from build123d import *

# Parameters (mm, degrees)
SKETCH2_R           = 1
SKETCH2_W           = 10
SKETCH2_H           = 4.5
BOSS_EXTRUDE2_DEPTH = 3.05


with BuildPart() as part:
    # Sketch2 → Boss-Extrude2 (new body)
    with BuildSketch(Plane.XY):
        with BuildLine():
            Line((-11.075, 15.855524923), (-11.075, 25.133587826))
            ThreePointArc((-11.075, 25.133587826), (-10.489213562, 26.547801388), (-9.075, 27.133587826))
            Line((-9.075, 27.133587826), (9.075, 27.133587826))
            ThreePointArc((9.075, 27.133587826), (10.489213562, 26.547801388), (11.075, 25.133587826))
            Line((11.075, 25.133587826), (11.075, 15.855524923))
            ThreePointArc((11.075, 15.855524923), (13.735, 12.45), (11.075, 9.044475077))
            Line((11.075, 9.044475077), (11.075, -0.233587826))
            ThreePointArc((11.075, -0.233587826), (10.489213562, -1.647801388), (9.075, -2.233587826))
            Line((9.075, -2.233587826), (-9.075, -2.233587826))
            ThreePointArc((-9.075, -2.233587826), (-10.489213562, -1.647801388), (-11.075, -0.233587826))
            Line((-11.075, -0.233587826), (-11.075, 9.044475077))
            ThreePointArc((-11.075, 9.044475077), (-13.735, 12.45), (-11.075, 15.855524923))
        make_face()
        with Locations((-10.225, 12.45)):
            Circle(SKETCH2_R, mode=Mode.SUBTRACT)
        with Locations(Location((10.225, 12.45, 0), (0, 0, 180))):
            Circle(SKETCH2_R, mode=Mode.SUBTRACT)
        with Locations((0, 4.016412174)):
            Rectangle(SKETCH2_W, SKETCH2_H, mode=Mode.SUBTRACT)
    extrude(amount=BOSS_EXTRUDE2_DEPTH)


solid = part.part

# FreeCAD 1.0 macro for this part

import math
import FreeCAD as App
import Part
import Sketcher

doc = App.newDocument("Part")
params = doc.addObject("Spreadsheet::Sheet", "Params")
for row, (alias, value) in enumerate([
    ("sketch1_diameter", "2 mm"),
    ("sketch1_radius", "2 mm"),
    ("sketch1_width", "10 mm"),
    ("sketch1_radius2", "3.51 mm"),
    ("sketch1_height", "4.5 mm"),
    ("pad1_length", "3.05 mm"),
], start=1):
    params.set(f"A{row}", alias)
    params.set(f"B{row}", "=" + value)
    params.setAlias(f"B{row}", alias)

body = doc.addObject("PartDesign::Body", "Body")

# Sketch on XY plane
sketch1 = body.newObject("Sketcher::SketchObject", "Sketch")
sketch1.AttachmentSupport = (doc.getObject("XY_Plane"), [""])
sketch1.MapMode = "FlatFace"
sketch1.addGeometry(Part.LineSegment(App.Vector(-11.1, 25.1, 0), App.Vector(-11.1, 15.9, 0)), False)
sketch1.addGeometry(Part.ArcOfCircle(Part.Circle(App.Vector(-10.2, 12.4, 0), App.Vector(0, 0, 1), 3.5), math.radians(104), math.radians(256)), False)
sketch1.addGeometry(Part.LineSegment(App.Vector(-11.1, 9, 0), App.Vector(-11.1, -0.2, 0)), False)
sketch1.addGeometry(Part.ArcOfCircle(Part.Circle(App.Vector(-9.1, -0.2, 0), App.Vector(0, 0, 1), 2), math.radians(-180), math.radians(-90)), False)
sketch1.addGeometry(Part.LineSegment(App.Vector(-9.1, -2.2, 0), App.Vector(9.1, -2.2, 0)), False)
sketch1.addGeometry(Part.ArcOfCircle(Part.Circle(App.Vector(9.1, -0.2, 0), App.Vector(0, 0, 1), 2), math.radians(-90), math.radians(0)), False)
sketch1.addGeometry(Part.LineSegment(App.Vector(11.1, -0.2, 0), App.Vector(11.1, 9, 0)), False)
sketch1.addGeometry(Part.ArcOfCircle(Part.Circle(App.Vector(10.2, 12.4, 0), App.Vector(0, 0, 1), 3.5), math.radians(-76), math.radians(76)), False)
sketch1.addGeometry(Part.LineSegment(App.Vector(11.1, 15.9, 0), App.Vector(11.1, 25.1, 0)), False)
sketch1.addGeometry(Part.ArcOfCircle(Part.Circle(App.Vector(9.1, 25.1, 0), App.Vector(0, 0, 1), 2), math.radians(0), math.radians(90)), False)
sketch1.addGeometry(Part.LineSegment(App.Vector(9.1, 27.1, 0), App.Vector(-9.1, 27.1, 0)), False)
sketch1.addGeometry(Part.ArcOfCircle(Part.Circle(App.Vector(-9.1, 25.1, 0), App.Vector(0, 0, 1), 2), math.radians(90), math.radians(180)), False)
sketch1.addGeometry(Part.LineSegment(App.Vector(-5, 1.8, 0), App.Vector(-5, 6.3, 0)), False)
sketch1.addGeometry(Part.LineSegment(App.Vector(-5, 6.3, 0), App.Vector(5, 6.3, 0)), False)
sketch1.addGeometry(Part.LineSegment(App.Vector(5, 6.3, 0), App.Vector(5, 1.8, 0)), False)
sketch1.addGeometry(Part.LineSegment(App.Vector(5, 1.8, 0), App.Vector(-5, 1.8, 0)), False)
sketch1.addGeometry(Part.Circle(App.Vector(10.2, 12.4, 0), App.Vector(0, 0, 1), 1), False)
sketch1.addGeometry(Part.Circle(App.Vector(-10.2, 12.4, 0), App.Vector(0, 0, 1), 1), False)
sketch1.addConstraint(Sketcher.Constraint("Coincident", 0, 2, 1, 1))
sketch1.addConstraint(Sketcher.Constraint("Coincident", 1, 2, 2, 1))
sketch1.addConstraint(Sketcher.Constraint("Tangent", 2, 2, 3, 1))
sketch1.addConstraint(Sketcher.Constraint("Tangent", 3, 2, 4, 1))
sketch1.addConstraint(Sketcher.Constraint("Tangent", 4, 2, 5, 1))
sketch1.addConstraint(Sketcher.Constraint("Tangent", 5, 2, 6, 1))
sketch1.addConstraint(Sketcher.Constraint("Coincident", 6, 2, 7, 1))
sketch1.addConstraint(Sketcher.Constraint("Coincident", 7, 2, 8, 1))
sketch1.addConstraint(Sketcher.Constraint("Tangent", 8, 2, 9, 1))
sketch1.addConstraint(Sketcher.Constraint("Tangent", 9, 2, 10, 1))
sketch1.addConstraint(Sketcher.Constraint("Tangent", 10, 2, 11, 1))
sketch1.addConstraint(Sketcher.Constraint("Tangent", 11, 2, 0, 1))
sketch1.addConstraint(Sketcher.Constraint("Coincident", 12, 2, 13, 1))
sketch1.addConstraint(Sketcher.Constraint("Coincident", 13, 2, 14, 1))
sketch1.addConstraint(Sketcher.Constraint("Coincident", 14, 2, 15, 1))
sketch1.addConstraint(Sketcher.Constraint("Coincident", 15, 2, 12, 1))
sketch1.addConstraint(Sketcher.Constraint("Vertical", 0))
sketch1.addConstraint(Sketcher.Constraint("Vertical", 2))
sketch1.addConstraint(Sketcher.Constraint("Horizontal", 4))
sketch1.addConstraint(Sketcher.Constraint("Vertical", 6))
sketch1.addConstraint(Sketcher.Constraint("Vertical", 8))
sketch1.addConstraint(Sketcher.Constraint("Horizontal", 10))
sketch1.addConstraint(Sketcher.Constraint("Vertical", 12))
sketch1.addConstraint(Sketcher.Constraint("Horizontal", 13))
sketch1.addConstraint(Sketcher.Constraint("Vertical", 14))
sketch1.addConstraint(Sketcher.Constraint("Horizontal", 15))
sketch1.addConstraint(Sketcher.Constraint("Coincident", 16, 3, 7, 3))
sketch1.addConstraint(Sketcher.Constraint("Coincident", 17, 3, 1, 3))
sketch1.addConstraint(Sketcher.Constraint("Equal", 3, 5))
sketch1.addConstraint(Sketcher.Constraint("Equal", 1, 7))
sketch1.addConstraint(Sketcher.Constraint("Equal", 5, 9))
sketch1.addConstraint(Sketcher.Constraint("Equal", 9, 11))
sketch1.addConstraint(Sketcher.Constraint("Equal", 16, 17))
sketch1.addConstraint(Sketcher.Constraint("Symmetric", 1, 3, 7, 3, -2))
sketch1.addConstraint(Sketcher.Constraint("Horizontal", 1, 2, 6, 2))
sketch1.addConstraint(Sketcher.Constraint("Horizontal", 0, 2, 7, 2))
sketch1.addConstraint(Sketcher.Constraint("Vertical", 5, 3, 9, 3))
sketch1.addConstraint(Sketcher.Constraint("Equal", 0, 2))
sketch1.addConstraint(Sketcher.Constraint("Diameter", 16, 2.0))
sketch1.addConstraint(Sketcher.Constraint("Radius", 3, 2.0))
sketch1.addConstraint(Sketcher.Constraint("DistanceX", 13, 1, 13, 2, 10.0))
sketch1.addConstraint(Sketcher.Constraint("Radius", 1, 3.51))
sketch1.addConstraint(Sketcher.Constraint("DistanceY", 12, 1, 12, 2, 4.5))
sketch1.addConstraint(Sketcher.Constraint("DistanceX", 12, 2, -1, 1, 5.0))
sketch1.addConstraint(Sketcher.Constraint("DistanceY", 5, 3, 14, 2, 2.0))
sketch1.addConstraint(Sketcher.Constraint("DistanceX", 4, 1, 4, 2, 18.15))
sketch1.addConstraint(Sketcher.Constraint("DistanceX", 1, 3, 5, 3, 19.3))
sketch1.addConstraint(Sketcher.Constraint("DistanceY", -1, 1, 1, 3, 12.45))
sketch1.addConstraint(Sketcher.Constraint("DistanceY", 0, 2, 0, 1, 9.278063))
sketch1.setExpression("Constraints[38]", "Params.sketch1_diameter")
sketch1.setExpression("Constraints[39]", "Params.sketch1_radius")
sketch1.setExpression("Constraints[40]", "Params.sketch1_width")
sketch1.setExpression("Constraints[41]", "Params.sketch1_radius2")
sketch1.setExpression("Constraints[42]", "Params.sketch1_height")
pad1 = body.newObject("PartDesign::Pad", "Pad")
pad1.Profile = sketch1
pad1.setExpression("Length", "Params.pad1_length")

doc.recompute()
